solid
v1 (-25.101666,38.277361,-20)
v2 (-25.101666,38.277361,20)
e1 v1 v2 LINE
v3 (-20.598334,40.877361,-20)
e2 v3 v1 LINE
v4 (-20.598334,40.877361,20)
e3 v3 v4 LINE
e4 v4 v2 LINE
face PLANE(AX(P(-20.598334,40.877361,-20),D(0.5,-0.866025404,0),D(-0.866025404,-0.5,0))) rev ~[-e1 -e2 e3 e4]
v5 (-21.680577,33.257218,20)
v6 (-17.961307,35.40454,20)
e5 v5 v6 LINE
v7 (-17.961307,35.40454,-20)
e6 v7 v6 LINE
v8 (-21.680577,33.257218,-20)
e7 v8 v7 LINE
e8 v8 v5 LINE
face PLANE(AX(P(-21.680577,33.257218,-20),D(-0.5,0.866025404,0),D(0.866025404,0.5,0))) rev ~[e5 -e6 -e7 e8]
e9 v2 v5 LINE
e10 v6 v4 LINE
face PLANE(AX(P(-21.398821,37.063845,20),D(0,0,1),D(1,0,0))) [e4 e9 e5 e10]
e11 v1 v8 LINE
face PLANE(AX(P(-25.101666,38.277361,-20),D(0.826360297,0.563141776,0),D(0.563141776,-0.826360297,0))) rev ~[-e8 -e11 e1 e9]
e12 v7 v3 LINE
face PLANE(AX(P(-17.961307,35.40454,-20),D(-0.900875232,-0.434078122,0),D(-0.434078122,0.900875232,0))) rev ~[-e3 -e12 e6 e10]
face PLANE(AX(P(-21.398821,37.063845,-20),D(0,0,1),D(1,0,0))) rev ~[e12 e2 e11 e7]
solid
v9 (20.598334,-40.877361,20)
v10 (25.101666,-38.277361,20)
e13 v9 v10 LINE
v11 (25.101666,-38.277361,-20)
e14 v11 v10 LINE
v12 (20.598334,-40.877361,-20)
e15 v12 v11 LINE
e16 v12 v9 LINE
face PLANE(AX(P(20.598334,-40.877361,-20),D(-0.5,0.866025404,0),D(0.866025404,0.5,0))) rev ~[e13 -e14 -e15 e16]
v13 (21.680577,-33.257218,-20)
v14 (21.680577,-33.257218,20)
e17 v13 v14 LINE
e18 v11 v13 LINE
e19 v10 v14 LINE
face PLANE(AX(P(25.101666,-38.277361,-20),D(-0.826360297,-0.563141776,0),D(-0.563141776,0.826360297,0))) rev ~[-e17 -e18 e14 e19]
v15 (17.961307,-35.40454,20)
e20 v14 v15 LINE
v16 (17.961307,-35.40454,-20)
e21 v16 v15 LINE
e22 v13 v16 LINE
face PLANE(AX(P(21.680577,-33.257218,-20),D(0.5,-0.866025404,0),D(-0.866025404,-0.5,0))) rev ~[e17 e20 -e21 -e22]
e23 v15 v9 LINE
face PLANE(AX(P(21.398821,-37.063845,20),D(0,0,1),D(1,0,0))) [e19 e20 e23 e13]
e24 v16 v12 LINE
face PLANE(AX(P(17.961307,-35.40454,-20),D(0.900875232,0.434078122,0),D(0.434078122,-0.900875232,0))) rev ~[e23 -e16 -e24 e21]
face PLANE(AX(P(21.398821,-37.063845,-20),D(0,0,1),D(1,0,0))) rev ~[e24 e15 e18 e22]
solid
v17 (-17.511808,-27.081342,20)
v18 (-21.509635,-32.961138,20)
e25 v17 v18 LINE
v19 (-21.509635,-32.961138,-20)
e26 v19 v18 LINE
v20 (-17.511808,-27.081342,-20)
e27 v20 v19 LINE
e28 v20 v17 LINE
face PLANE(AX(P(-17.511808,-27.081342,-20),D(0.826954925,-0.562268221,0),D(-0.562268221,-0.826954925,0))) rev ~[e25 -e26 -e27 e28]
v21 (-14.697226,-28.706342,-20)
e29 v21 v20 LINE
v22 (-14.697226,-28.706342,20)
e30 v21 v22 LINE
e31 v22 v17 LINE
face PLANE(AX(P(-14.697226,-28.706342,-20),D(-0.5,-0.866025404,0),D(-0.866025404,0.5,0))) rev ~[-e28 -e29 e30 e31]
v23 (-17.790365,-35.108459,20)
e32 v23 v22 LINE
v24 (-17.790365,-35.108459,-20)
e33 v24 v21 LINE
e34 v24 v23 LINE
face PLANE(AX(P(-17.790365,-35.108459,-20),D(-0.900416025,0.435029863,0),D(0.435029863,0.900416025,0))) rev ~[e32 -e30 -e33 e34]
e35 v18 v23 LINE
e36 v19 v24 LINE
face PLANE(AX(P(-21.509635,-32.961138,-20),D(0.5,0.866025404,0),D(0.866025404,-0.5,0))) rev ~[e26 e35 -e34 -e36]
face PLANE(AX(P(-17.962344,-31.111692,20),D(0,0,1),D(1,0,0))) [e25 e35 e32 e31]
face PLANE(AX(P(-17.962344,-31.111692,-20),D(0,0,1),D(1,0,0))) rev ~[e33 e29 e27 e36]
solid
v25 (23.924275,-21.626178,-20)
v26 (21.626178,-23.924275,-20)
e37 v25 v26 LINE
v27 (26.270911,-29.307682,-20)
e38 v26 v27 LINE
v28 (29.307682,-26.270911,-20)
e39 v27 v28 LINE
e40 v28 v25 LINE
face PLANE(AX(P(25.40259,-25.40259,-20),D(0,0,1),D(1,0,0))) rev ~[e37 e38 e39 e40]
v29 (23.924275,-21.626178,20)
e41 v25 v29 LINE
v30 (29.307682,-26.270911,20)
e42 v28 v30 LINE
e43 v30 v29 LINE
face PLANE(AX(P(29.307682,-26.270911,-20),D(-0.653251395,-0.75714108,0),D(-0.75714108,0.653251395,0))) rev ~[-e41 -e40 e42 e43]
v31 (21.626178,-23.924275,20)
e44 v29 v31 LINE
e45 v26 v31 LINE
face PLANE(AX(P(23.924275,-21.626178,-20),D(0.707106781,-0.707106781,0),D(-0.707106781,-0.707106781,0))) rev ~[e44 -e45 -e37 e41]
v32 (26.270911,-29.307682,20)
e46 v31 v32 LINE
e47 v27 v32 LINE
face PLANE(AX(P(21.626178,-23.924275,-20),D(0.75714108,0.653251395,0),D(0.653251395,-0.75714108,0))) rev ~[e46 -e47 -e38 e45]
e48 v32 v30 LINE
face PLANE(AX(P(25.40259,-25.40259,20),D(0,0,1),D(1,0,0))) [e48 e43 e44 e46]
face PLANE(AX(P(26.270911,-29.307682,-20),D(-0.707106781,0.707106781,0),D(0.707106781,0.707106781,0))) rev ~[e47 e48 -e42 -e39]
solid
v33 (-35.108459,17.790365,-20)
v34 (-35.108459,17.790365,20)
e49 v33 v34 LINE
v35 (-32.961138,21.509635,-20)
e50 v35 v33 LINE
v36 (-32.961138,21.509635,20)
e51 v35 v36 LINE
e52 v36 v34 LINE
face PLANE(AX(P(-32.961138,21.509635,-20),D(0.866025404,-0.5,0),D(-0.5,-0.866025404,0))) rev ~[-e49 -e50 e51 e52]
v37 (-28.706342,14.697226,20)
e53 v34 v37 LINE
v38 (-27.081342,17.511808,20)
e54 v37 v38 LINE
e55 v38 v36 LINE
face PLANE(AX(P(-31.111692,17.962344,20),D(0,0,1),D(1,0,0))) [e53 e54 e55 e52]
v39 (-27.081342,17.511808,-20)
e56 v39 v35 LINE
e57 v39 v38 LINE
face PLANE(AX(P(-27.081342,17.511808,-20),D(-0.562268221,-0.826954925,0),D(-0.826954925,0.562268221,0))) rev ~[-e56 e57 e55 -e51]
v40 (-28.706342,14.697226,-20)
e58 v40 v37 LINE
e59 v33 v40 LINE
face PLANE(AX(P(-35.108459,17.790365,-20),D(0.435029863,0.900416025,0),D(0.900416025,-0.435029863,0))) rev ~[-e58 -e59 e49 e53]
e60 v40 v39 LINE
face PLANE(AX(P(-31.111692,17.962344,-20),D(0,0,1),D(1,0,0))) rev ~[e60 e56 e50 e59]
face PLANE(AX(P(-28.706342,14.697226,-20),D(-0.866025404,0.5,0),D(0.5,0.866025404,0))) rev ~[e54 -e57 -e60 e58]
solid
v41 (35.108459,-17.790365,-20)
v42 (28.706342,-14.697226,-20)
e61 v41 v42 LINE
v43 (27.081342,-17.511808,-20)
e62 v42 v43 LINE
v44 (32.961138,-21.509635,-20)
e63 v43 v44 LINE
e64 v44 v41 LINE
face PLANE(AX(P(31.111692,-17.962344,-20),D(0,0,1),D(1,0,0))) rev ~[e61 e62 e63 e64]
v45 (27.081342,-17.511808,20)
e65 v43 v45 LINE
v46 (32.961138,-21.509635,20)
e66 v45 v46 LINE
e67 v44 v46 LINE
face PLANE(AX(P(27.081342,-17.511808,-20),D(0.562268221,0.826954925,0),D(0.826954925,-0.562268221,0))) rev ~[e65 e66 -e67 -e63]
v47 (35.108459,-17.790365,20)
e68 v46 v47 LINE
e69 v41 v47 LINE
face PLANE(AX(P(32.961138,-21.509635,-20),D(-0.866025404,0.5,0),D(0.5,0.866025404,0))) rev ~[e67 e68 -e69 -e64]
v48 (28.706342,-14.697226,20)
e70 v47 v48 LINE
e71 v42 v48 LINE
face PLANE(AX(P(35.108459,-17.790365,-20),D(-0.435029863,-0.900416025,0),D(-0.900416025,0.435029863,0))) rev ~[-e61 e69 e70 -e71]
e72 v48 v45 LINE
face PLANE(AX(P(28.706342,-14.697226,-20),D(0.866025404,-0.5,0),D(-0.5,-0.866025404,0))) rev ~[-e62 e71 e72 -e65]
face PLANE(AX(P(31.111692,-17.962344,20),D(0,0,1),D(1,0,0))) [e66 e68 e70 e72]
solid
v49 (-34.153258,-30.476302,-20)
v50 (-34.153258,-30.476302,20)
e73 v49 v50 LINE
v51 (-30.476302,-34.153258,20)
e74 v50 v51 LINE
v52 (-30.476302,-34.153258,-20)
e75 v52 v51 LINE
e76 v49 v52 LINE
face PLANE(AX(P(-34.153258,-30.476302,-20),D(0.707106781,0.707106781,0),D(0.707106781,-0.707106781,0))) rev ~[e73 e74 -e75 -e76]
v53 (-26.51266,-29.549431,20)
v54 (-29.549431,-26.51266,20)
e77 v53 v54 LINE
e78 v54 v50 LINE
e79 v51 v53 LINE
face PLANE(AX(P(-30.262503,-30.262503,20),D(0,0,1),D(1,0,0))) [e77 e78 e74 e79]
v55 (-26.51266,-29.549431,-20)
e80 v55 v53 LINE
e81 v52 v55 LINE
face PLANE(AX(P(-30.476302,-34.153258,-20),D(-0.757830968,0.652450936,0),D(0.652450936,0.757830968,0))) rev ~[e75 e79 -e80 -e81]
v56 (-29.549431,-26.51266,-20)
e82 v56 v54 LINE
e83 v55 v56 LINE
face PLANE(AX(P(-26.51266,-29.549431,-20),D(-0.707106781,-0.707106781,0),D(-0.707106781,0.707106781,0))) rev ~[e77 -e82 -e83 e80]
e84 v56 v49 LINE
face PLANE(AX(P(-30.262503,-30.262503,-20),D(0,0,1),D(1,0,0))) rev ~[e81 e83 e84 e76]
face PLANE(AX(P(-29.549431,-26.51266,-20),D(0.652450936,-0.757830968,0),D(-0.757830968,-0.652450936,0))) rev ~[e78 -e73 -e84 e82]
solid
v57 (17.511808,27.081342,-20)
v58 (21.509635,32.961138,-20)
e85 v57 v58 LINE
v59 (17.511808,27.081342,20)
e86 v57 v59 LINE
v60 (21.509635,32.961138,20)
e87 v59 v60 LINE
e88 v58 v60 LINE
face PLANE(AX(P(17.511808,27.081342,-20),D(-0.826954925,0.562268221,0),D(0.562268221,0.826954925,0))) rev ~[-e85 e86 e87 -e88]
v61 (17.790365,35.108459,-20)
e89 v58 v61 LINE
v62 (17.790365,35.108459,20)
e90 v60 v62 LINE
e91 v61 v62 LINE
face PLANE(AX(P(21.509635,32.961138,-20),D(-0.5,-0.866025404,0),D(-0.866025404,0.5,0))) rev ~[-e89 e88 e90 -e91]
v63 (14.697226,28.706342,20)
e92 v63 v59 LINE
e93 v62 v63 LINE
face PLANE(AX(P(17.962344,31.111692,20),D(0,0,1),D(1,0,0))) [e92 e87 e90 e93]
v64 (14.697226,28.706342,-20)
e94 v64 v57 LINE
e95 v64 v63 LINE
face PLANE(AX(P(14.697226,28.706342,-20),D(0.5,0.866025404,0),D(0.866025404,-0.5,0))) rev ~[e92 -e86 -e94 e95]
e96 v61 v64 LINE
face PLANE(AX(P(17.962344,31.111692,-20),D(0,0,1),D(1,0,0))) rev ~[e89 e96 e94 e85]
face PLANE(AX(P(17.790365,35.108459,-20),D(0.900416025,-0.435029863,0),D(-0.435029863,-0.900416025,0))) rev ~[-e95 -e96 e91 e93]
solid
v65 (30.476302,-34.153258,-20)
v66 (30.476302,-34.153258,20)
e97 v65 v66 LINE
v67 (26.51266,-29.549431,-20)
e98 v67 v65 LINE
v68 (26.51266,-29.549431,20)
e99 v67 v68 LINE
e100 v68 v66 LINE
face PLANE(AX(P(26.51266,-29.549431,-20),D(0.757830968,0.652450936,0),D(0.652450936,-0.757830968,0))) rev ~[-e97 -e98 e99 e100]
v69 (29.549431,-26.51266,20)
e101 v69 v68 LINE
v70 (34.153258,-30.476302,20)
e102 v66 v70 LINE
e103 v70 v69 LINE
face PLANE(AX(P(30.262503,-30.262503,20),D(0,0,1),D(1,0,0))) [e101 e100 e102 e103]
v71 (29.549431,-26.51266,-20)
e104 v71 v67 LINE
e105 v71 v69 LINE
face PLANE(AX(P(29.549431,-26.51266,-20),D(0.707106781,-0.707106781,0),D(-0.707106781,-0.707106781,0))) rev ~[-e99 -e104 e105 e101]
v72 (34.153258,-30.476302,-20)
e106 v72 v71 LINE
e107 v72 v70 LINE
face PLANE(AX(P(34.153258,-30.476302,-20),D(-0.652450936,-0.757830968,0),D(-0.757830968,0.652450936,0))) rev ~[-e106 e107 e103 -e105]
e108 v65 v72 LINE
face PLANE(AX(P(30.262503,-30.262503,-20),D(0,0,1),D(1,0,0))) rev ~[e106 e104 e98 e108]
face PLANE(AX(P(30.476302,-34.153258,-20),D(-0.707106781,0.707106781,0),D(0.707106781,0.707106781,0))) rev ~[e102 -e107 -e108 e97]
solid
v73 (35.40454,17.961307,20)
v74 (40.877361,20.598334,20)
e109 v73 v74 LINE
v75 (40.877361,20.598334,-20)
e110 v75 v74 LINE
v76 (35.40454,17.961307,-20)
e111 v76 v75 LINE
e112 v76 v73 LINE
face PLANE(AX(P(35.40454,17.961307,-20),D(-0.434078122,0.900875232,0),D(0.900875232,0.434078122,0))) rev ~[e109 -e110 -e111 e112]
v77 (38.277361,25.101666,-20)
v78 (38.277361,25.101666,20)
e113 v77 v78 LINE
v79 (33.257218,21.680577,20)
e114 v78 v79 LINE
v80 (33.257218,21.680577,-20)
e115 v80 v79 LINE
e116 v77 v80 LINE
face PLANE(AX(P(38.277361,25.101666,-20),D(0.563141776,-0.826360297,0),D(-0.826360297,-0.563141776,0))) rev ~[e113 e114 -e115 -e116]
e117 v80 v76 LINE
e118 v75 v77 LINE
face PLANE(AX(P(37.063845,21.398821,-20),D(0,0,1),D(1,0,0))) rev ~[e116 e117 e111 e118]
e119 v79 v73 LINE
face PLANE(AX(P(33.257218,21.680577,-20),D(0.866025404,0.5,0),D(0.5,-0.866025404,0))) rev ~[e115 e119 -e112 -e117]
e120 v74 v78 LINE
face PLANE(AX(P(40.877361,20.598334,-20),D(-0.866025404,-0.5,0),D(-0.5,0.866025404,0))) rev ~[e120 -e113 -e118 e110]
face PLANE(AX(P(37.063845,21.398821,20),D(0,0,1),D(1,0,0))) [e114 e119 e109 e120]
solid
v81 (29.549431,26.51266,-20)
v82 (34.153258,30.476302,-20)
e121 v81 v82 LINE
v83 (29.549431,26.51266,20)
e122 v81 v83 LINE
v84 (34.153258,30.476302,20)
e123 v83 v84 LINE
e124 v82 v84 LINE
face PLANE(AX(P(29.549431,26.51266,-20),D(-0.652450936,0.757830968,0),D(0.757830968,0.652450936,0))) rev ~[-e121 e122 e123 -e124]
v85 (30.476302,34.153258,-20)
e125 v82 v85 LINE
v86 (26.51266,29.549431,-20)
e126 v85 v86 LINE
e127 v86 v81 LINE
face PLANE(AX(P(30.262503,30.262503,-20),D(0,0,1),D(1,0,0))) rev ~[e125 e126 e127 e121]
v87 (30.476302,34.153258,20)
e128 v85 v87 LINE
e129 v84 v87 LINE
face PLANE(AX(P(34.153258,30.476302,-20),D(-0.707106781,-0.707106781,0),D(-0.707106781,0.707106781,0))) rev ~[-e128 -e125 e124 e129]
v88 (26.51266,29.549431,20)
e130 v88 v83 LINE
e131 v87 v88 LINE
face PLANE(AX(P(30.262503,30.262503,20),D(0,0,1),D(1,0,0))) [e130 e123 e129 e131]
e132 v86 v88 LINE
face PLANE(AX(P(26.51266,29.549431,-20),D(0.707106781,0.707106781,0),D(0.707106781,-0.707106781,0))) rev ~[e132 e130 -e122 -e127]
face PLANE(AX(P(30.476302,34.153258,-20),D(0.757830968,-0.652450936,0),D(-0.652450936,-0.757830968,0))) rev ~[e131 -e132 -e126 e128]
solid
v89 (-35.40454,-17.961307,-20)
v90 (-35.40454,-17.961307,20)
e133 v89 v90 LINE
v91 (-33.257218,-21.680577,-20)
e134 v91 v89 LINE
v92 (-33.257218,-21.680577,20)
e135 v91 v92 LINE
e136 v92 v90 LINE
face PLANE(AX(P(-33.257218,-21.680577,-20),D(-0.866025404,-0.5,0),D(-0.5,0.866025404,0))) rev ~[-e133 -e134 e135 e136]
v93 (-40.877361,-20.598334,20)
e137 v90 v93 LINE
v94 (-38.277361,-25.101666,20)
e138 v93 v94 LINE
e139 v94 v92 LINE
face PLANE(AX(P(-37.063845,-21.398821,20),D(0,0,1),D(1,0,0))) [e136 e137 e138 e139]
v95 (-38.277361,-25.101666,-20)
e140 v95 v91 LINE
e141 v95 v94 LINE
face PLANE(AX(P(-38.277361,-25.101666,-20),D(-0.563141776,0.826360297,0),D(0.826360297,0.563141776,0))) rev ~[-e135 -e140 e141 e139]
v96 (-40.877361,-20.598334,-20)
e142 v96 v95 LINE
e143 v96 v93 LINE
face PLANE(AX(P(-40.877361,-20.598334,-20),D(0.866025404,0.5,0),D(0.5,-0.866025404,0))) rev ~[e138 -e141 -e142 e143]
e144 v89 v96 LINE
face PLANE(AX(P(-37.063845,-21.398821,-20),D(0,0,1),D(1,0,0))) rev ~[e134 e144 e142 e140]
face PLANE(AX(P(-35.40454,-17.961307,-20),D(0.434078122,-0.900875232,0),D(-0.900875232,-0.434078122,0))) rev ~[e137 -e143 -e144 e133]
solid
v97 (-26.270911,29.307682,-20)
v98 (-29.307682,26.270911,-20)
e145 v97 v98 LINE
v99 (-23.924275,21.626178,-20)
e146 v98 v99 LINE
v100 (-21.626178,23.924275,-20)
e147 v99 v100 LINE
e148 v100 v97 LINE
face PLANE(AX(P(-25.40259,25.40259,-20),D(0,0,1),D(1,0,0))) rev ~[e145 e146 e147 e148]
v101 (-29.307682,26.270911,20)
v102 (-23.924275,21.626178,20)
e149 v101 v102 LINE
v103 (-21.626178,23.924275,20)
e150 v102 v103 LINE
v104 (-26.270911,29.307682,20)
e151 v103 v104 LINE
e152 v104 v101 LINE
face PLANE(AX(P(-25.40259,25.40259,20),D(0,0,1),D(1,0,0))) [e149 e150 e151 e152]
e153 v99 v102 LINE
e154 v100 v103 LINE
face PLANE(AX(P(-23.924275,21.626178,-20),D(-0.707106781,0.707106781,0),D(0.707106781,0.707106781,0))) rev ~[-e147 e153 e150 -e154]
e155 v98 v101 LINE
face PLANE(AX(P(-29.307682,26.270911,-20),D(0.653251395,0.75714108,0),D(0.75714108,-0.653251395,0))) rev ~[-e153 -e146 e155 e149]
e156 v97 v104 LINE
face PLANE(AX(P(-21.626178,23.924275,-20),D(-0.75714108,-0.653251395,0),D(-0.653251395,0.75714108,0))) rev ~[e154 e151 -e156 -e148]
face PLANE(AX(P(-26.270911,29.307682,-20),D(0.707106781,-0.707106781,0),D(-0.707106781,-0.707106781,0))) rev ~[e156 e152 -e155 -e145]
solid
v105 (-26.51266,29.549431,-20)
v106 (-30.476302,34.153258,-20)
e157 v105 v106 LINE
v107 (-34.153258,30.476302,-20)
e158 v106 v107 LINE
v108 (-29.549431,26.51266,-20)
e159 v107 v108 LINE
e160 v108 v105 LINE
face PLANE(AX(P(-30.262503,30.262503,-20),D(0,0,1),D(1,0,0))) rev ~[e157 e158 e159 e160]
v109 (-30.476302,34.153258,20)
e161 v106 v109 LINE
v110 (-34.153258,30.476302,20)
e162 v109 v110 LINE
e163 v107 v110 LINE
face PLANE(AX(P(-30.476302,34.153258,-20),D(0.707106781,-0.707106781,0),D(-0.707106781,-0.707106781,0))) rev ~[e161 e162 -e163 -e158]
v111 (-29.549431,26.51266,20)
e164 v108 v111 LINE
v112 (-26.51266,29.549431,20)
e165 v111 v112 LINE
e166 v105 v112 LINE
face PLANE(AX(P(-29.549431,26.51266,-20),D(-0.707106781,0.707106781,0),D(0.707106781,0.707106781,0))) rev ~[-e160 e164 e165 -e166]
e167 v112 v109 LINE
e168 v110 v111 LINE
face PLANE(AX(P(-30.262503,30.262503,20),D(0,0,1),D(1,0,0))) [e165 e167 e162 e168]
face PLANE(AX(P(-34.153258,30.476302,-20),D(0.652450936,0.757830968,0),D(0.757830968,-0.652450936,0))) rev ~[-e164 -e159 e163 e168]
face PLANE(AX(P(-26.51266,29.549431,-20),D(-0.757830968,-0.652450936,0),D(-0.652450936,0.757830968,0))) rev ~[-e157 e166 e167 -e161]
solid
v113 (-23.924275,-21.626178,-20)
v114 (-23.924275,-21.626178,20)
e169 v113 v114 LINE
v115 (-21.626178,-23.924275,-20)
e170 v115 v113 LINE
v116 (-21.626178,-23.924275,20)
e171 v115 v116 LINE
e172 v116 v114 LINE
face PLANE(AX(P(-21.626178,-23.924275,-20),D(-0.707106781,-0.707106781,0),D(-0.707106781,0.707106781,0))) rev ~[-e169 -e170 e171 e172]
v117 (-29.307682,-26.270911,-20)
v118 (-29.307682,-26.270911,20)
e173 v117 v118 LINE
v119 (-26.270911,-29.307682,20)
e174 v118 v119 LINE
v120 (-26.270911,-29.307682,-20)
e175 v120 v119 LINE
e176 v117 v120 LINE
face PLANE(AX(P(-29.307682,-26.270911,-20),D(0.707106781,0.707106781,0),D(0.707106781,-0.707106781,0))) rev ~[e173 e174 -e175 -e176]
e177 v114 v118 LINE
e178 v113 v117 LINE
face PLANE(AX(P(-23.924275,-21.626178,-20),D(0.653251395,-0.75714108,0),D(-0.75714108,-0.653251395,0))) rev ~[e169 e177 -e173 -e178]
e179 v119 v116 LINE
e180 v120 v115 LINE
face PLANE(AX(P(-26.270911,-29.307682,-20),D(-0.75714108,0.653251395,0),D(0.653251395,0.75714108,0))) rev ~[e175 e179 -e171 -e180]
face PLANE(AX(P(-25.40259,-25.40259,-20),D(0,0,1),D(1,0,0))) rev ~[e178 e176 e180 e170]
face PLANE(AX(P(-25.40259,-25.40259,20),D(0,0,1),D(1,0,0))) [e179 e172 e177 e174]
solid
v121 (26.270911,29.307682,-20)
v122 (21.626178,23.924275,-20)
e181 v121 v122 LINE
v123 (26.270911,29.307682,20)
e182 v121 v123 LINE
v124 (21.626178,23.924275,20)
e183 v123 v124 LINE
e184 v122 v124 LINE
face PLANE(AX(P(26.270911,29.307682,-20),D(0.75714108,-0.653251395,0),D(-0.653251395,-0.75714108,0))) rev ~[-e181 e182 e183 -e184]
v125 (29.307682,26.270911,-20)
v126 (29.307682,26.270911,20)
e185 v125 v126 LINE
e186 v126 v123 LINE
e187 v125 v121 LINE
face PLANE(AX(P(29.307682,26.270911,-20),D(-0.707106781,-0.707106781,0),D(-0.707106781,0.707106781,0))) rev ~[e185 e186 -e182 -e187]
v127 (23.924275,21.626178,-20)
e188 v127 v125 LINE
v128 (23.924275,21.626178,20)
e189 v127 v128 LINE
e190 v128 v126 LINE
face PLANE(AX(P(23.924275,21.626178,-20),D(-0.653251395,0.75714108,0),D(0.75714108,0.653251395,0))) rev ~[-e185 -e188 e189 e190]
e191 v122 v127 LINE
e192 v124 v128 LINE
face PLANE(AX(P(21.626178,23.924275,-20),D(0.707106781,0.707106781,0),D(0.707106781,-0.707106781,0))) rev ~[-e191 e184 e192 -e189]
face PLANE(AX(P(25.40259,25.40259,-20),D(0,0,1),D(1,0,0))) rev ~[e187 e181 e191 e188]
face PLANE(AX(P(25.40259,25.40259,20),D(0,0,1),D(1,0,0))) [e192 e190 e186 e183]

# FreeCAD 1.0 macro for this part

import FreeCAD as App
import Part
import Sketcher

V = App.Vector
Q = App.Units.Quantity

doc = App.newDocument("Part")
body = doc.addObject("PartDesign::Body", "Body")

sketch1 = body.newObject("Sketcher::SketchObject", "Sketch")
sketch1.AttachmentSupport = (doc.getObject("XY_Plane"), [""])
sketch1.MapMode = "FlatFace"
sketch1.AttachmentOffset = App.Placement(V(0, 0, -20), App.Rotation())
sketch1.addGeometry(Part.LineSegment(V(35.40454, 17.961307, 0), V(40.877361, 20.598334, 0)), False)
sketch1.addGeometry(Part.LineSegment(V(40.877361, 20.598334, 0), V(38.277361, 25.101666, 0)), False)
sketch1.addGeometry(Part.LineSegment(V(38.277361, 25.101666, 0), V(33.257218, 21.680577, 0)), False)
sketch1.addGeometry(Part.LineSegment(V(33.257218, 21.680577, 0), V(35.40454, 17.961307, 0)), False)
sketch1.addConstraint(Sketcher.Constraint("Coincident", 0, 2, 1, 1))
sketch1.addConstraint(Sketcher.Constraint("Coincident", 1, 2, 2, 1))
sketch1.addConstraint(Sketcher.Constraint("Coincident", 2, 2, 3, 1))
sketch1.addConstraint(Sketcher.Constraint("Coincident", 3, 2, 0, 1))
sketch1.addConstraint(Sketcher.Constraint("Parallel", 1, 3))
sketch1.addConstraint(Sketcher.Constraint("Equal", 0, 2))
sketch1.addConstraint(Sketcher.Constraint("Angle", 1, Q("120 deg")))
sketch1.addConstraint(Sketcher.Constraint("Distance", 1, Q("5.2 mm")))
sketch1.addConstraint(Sketcher.Constraint("DistanceX", -1, 1, 0, 2, Q("40.877361 mm")))
sketch1.addConstraint(Sketcher.Constraint("DistanceX", -1, 1, 2, 2, Q("33.257218 mm")))
sketch1.addConstraint(Sketcher.Constraint("DistanceX", -1, 1, 3, 2, Q("35.40454 mm")))
sketch1.addConstraint(Sketcher.Constraint("DistanceY", -1, 1, 0, 2, Q("20.598334 mm")))
pad1 = body.newObject("PartDesign::Pad", "Pad")
pad1.Profile = sketch1
pad1.Length = 40
body2 = doc.addObject("PartDesign::Body", "Body001")

sketch2 = body2.newObject("Sketcher::SketchObject", "Sketch001")
sketch2.AttachmentSupport = (doc.getObject("XY_Plane001"), [""])
sketch2.MapMode = "FlatFace"
sketch2.AttachmentOffset = App.Placement(V(0, 0, -20), App.Rotation())
sketch2.addGeometry(Part.LineSegment(V(23.924275, 21.626178, 0), V(29.307682, 26.270911, 0)), False)
sketch2.addGeometry(Part.LineSegment(V(29.307682, 26.270911, 0), V(26.270911, 29.307682, 0)), False)
sketch2.addGeometry(Part.LineSegment(V(26.270911, 29.307682, 0), V(21.626178, 23.924275, 0)), False)
sketch2.addGeometry(Part.LineSegment(V(21.626178, 23.924275, 0), V(23.924275, 21.626178, 0)), False)
sketch2.addConstraint(Sketcher.Constraint("Coincident", 0, 2, 1, 1))
sketch2.addConstraint(Sketcher.Constraint("Coincident", 1, 2, 2, 1))
sketch2.addConstraint(Sketcher.Constraint("Coincident", 2, 2, 3, 1))
sketch2.addConstraint(Sketcher.Constraint("Coincident", 3, 2, 0, 1))
sketch2.addConstraint(Sketcher.Constraint("Parallel", 1, 3))
sketch2.addConstraint(Sketcher.Constraint("Equal", 0, 2))
sketch2.addConstraint(Sketcher.Constraint("Angle", 1, Q("135 deg")))
sketch2.addConstraint(Sketcher.Constraint("Distance", 3, Q("3.25 mm")))
sketch2.addConstraint(Sketcher.Constraint("DistanceY", -1, 1, 0, 2, Q("26.270911 mm")))
sketch2.addConstraint(Sketcher.Constraint("DistanceX", -1, 1, 1, 2, Q("26.270911 mm")))
sketch2.addConstraint(Sketcher.Constraint("DistanceX", 1, 2, 0, 2, Q("3.036771 mm")))
sketch2.addConstraint(Sketcher.Constraint("Distance", 0, Q("7.110177 mm")))
pad2 = body2.newObject("PartDesign::Pad", "Pad001")
pad2.Profile = sketch2
pad2.Length = 40
body3 = doc.addObject("PartDesign::Body", "Body002")

sketch3 = body3.newObject("Sketcher::SketchObject", "Sketch002")
sketch3.AttachmentSupport = (doc.getObject("XY_Plane002"), [""])
sketch3.MapMode = "FlatFace"
sketch3.AttachmentOffset = App.Placement(V(0, 0, -20), App.Rotation())
sketch3.addGeometry(Part.LineSegment(V(29.549431, 26.51266, 0), V(34.153258, 30.476302, 0)), False)
sketch3.addGeometry(Part.LineSegment(V(34.153258, 30.476302, 0), V(30.476302, 34.153258, 0)), False)
sketch3.addGeometry(Part.LineSegment(V(30.476302, 34.153258, 0), V(26.51266, 29.549431, 0)), False)
sketch3.addGeometry(Part.LineSegment(V(26.51266, 29.549431, 0), V(29.549431, 26.51266, 0)), False)
sketch3.addConstraint(Sketcher.Constraint("Coincident", 0, 2, 1, 1))
sketch3.addConstraint(Sketcher.Constraint("Coincident", 1, 2, 2, 1))
sketch3.addConstraint(Sketcher.Constraint("Coincident", 2, 2, 3, 1))
sketch3.addConstraint(Sketcher.Constraint("Coincident", 3, 2, 0, 1))
sketch3.addConstraint(Sketcher.Constraint("Parallel", 1, 3))
sketch3.addConstraint(Sketcher.Constraint("Equal", 0, 2))
sketch3.addConstraint(Sketcher.Constraint("Angle", 1, Q("135 deg")))
sketch3.addConstraint(Sketcher.Constraint("Distance", 1, Q("5.2 mm")))
sketch3.addConstraint(Sketcher.Constraint("DistanceX", -1, 1, 2, 2, Q("26.51266 mm")))
sketch3.addConstraint(Sketcher.Constraint("DistanceY", -1, 1, 2, 2, Q("29.549431 mm")))
sketch3.addConstraint(Sketcher.Constraint("DistanceX", -1, 1, 3, 2, Q("29.549431 mm")))
sketch3.addConstraint(Sketcher.Constraint("DistanceY", 2, 2, 0, 2, Q("0.926871 mm")))
pad3 = body3.newObject("PartDesign::Pad", "Pad002")
pad3.Profile = sketch3
pad3.Length = 40
body4 = doc.addObject("PartDesign::Body", "Body003")

sketch4 = body4.newObject("Sketcher::SketchObject", "Sketch003")
sketch4.AttachmentSupport = (doc.getObject("XY_Plane003"), [""])
sketch4.MapMode = "FlatFace"
sketch4.AttachmentOffset = App.Placement(V(0, 0, -20), App.Rotation())
sketch4.addGeometry(Part.LineSegment(V(17.511808, 27.081342, 0), V(21.509635, 32.961138, 0)), False)
sketch4.addGeometry(Part.LineSegment(V(21.509635, 32.961138, 0), V(17.790365, 35.108459, 0)), False)
sketch4.addGeometry(Part.LineSegment(V(17.790365, 35.108459, 0), V(14.697226, 28.706342, 0)), False)
sketch4.addGeometry(Part.LineSegment(V(14.697226, 28.706342, 0), V(17.511808, 27.081342, 0)), False)
sketch4.addConstraint(Sketcher.Constraint("Coincident", 0, 2, 1, 1))
sketch4.addConstraint(Sketcher.Constraint("Coincident", 1, 2, 2, 1))
sketch4.addConstraint(Sketcher.Constraint("Coincident", 2, 2, 3, 1))
sketch4.addConstraint(Sketcher.Constraint("Coincident", 3, 2, 0, 1))
sketch4.addConstraint(Sketcher.Constraint("Parallel", 1, 3))
sketch4.addConstraint(Sketcher.Constraint("Equal", 0, 2))
sketch4.addConstraint(Sketcher.Constraint("Angle", 1, Q("150 deg")))
sketch4.addConstraint(Sketcher.Constraint("Distance", 3, Q("3.25 mm")))
sketch4.addConstraint(Sketcher.Constraint("DistanceY", -1, 1, 1, 2, Q("35.108459 mm")))
sketch4.addConstraint(Sketcher.Constraint("DistanceY", -1, 1, 2, 2, Q("28.706342 mm")))
sketch4.addConstraint(Sketcher.Constraint("DistanceX", -1, 1, 3, 2, Q("17.511808 mm")))
sketch4.addConstraint(Sketcher.Constraint("DistanceX", 1, 2, 0, 2, Q("3.71927 mm")))
pad4 = body4.newObject("PartDesign::Pad", "Pad003")
pad4.Profile = sketch4
pad4.Length = 40
body5 = doc.addObject("PartDesign::Body", "Body004")

sketch5 = body5.newObject("Sketcher::SketchObject", "Sketch004")
sketch5.AttachmentSupport = (doc.getObject("XY_Plane004"), [""])
sketch5.MapMode = "FlatFace"
sketch5.AttachmentOffset = App.Placement(V(0, 0, -20), App.Rotation())
sketch5.addGeometry(Part.LineSegment(V(-17.961307, 35.40454, 0), V(-20.598334, 40.877361, 0)), False)
sketch5.addGeometry(Part.LineSegment(V(-20.598334, 40.877361, 0), V(-25.101666, 38.277361, 0)), False)
sketch5.addGeometry(Part.LineSegment(V(-25.101666, 38.277361, 0), V(-21.680577, 33.257218, 0)), False)
sketch5.addGeometry(Part.LineSegment(V(-21.680577, 33.257218, 0), V(-17.961307, 35.40454, 0)), False)
sketch5.addConstraint(Sketcher.Constraint("Coincident", 0, 2, 1, 1))
sketch5.addConstraint(Sketcher.Constraint("Coincident", 1, 2, 2, 1))
sketch5.addConstraint(Sketcher.Constraint("Coincident", 2, 2, 3, 1))
sketch5.addConstraint(Sketcher.Constraint("Coincident", 3, 2, 0, 1))
sketch5.addConstraint(Sketcher.Constraint("Parallel", 1, 3))
sketch5.addConstraint(Sketcher.Constraint("Equal", 0, 2))
sketch5.addConstraint(Sketcher.Constraint("Angle", 1, Q("-150 deg")))
sketch5.addConstraint(Sketcher.Constraint("Distance", 1, Q("5.2 mm")))
sketch5.addConstraint(Sketcher.Constraint("DistanceY", -1, 1, 0, 2, Q("40.877361 mm")))
sketch5.addConstraint(Sketcher.Constraint("DistanceY", -1, 1, 2, 2, Q("33.257218 mm")))
sketch5.addConstraint(Sketcher.Constraint("DistanceY", -1, 1, 3, 2, Q("35.40454 mm")))
sketch5.addConstraint(Sketcher.Constraint("DistanceX", 0, 2, -1, 1, Q("20.598334 mm")))
pad5 = body5.newObject("PartDesign::Pad", "Pad004")
pad5.Profile = sketch5
pad5.Length = 40
body6 = doc.addObject("PartDesign::Body", "Body005")

sketch6 = body6.newObject("Sketcher::SketchObject", "Sketch005")
sketch6.AttachmentSupport = (doc.getObject("XY_Plane005"), [""])
sketch6.MapMode = "FlatFace"
sketch6.AttachmentOffset = App.Placement(V(0, 0, -20), App.Rotation())
sketch6.addGeometry(Part.LineSegment(V(-21.626178, 23.924275, 0), V(-26.270911, 29.307682, 0)), False)
sketch6.addGeometry(Part.LineSegment(V(-26.270911, 29.307682, 0), V(-29.307682, 26.270911, 0)), False)
sketch6.addGeometry(Part.LineSegment(V(-29.307682, 26.270911, 0), V(-23.924275, 21.626178, 0)), False)
sketch6.addGeometry(Part.LineSegment(V(-23.924275, 21.626178, 0), V(-21.626178, 23.924275, 0)), False)
sketch6.addConstraint(Sketcher.Constraint("Coincident", 0, 2, 1, 1))
sketch6.addConstraint(Sketcher.Constraint("Coincident", 1, 2, 2, 1))
sketch6.addConstraint(Sketcher.Constraint("Coincident", 2, 2, 3, 1))
sketch6.addConstraint(Sketcher.Constraint("Coincident", 3, 2, 0, 1))
sketch6.addConstraint(Sketcher.Constraint("Parallel", 1, 3))
sketch6.addConstraint(Sketcher.Constraint("Equal", 0, 2))
sketch6.addConstraint(Sketcher.Constraint("Angle", 1, Q("-135 deg")))
sketch6.addConstraint(Sketcher.Constraint("Distance", 3, Q("3.25 mm")))
sketch6.addConstraint(Sketcher.Constraint("DistanceX", 0, 2, -1, 1, Q("26.270911 mm")))
sketch6.addConstraint(Sketcher.Constraint("DistanceY", -1, 1, 1, 2, Q("26.270911 mm")))
sketch6.addConstraint(Sketcher.Constraint("DistanceX", 1, 2, 0, 2, Q("3.036771 mm")))
sketch6.addConstraint(Sketcher.Constraint("Distance", 0, Q("7.110177 mm")))
pad6 = body6.newObject("PartDesign::Pad", "Pad005")
pad6.Profile = sketch6
pad6.Length = 40
body7 = doc.addObject("PartDesign::Body", "Body006")

sketch7 = body7.newObject("Sketcher::SketchObject", "Sketch006")
sketch7.AttachmentSupport = (doc.getObject("XY_Plane006"), [""])
sketch7.MapMode = "FlatFace"
sketch7.AttachmentOffset = App.Placement(V(0, 0, -20), App.Rotation())
sketch7.addGeometry(Part.LineSegment(V(-26.51266, 29.549431, 0), V(-30.476302, 34.153258, 0)), False)
sketch7.addGeometry(Part.LineSegment(V(-30.476302, 34.153258, 0), V(-34.153258, 30.476302, 0)), False)
sketch7.addGeometry(Part.LineSegment(V(-34.153258, 30.476302, 0), V(-29.549431, 26.51266, 0)), False)
sketch7.addGeometry(Part.LineSegment(V(-29.549431, 26.51266, 0), V(-26.51266, 29.549431, 0)), False)
sketch7.addConstraint(Sketcher.Constraint("Coincident", 0, 2, 1, 1))
sketch7.addConstraint(Sketcher.Constraint("Coincident", 1, 2, 2, 1))
sketch7.addConstraint(Sketcher.Constraint("Coincident", 2, 2, 3, 1))
sketch7.addConstraint(Sketcher.Constraint("Coincident", 3, 2, 0, 1))
sketch7.addConstraint(Sketcher.Constraint("Parallel", 1, 3))
sketch7.addConstraint(Sketcher.Constraint("Equal", 0, 2))
sketch7.addConstraint(Sketcher.Constraint("Angle", 1, Q("-135 deg")))
sketch7.addConstraint(Sketcher.Constraint("Distance", 1, Q("5.2 mm")))
sketch7.addConstraint(Sketcher.Constraint("DistanceX", 2, 2, -1, 1, Q("29.549431 mm")))
sketch7.addConstraint(Sketcher.Constraint("DistanceY", -1, 1, 2, 2, Q("26.51266 mm")))
sketch7.addConstraint(Sketcher.Constraint("DistanceX", 3, 2, -1, 1, Q("26.51266 mm")))
sketch7.addConstraint(Sketcher.Constraint("DistanceX", 0, 2, 2, 2, Q("0.926871 mm")))
pad7 = body7.newObject("PartDesign::Pad", "Pad006")
pad7.Profile = sketch7
pad7.Length = 40
body8 = doc.addObject("PartDesign::Body", "Body007")

sketch8 = body8.newObject("Sketcher::SketchObject", "Sketch007")
sketch8.AttachmentSupport = (doc.getObject("XY_Plane007"), [""])
sketch8.MapMode = "FlatFace"
sketch8.AttachmentOffset = App.Placement(V(0, 0, -20), App.Rotation())
sketch8.addGeometry(Part.LineSegment(V(-27.081342, 17.511808, 0), V(-32.961138, 21.509635, 0)), False)
sketch8.addGeometry(Part.LineSegment(V(-32.961138, 21.509635, 0), V(-35.108459, 17.790365, 0)), False)
sketch8.addGeometry(Part.LineSegment(V(-35.108459, 17.790365, 0), V(-28.706342, 14.697226, 0)), False)
sketch8.addGeometry(Part.LineSegment(V(-28.706342, 14.697226, 0), V(-27.081342, 17.511808, 0)), False)
sketch8.addConstraint(Sketcher.Constraint("Coincident", 0, 2, 1, 1))
sketch8.addConstraint(Sketcher.Constraint("Coincident", 1, 2, 2, 1))
sketch8.addConstraint(Sketcher.Constraint("Coincident", 2, 2, 3, 1))
sketch8.addConstraint(Sketcher.Constraint("Coincident", 3, 2, 0, 1))
sketch8.addConstraint(Sketcher.Constraint("Parallel", 1, 3))
sketch8.addConstraint(Sketcher.Constraint("Equal", 0, 2))
sketch8.addConstraint(Sketcher.Constraint("Angle", 1, Q("-120 deg")))
sketch8.addConstraint(Sketcher.Constraint("Distance", 3, Q("3.25 mm")))
sketch8.addConstraint(Sketcher.Constraint("DistanceX", 1, 2, -1, 1, Q("35.108459 mm")))
sketch8.addConstraint(Sketcher.Constraint("DistanceX", 2, 2, -1, 1, Q("28.706342 mm")))
sketch8.addConstraint(Sketcher.Constraint("DistanceY", -1, 1, 3, 2, Q("17.511808 mm")))
sketch8.addConstraint(Sketcher.Constraint("DistanceX", 1, 2, 0, 2, Q("2.147321 mm")))
pad8 = body8.newObject("PartDesign::Pad", "Pad007")
pad8.Profile = sketch8
pad8.Length = 40
body9 = doc.addObject("PartDesign::Body", "Body008")

sketch9 = body9.newObject("Sketcher::SketchObject", "Sketch008")
sketch9.AttachmentSupport = (doc.getObject("XY_Plane008"), [""])
sketch9.MapMode = "FlatFace"
sketch9.AttachmentOffset = App.Placement(V(0, 0, -20), App.Rotation())
sketch9.addGeometry(Part.LineSegment(V(-35.40454, -17.961307, 0), V(-40.877361, -20.598334, 0)), False)
sketch9.addGeometry(Part.LineSegment(V(-40.877361, -20.598334, 0), V(-38.277361, -25.101666, 0)), False)
sketch9.addGeometry(Part.LineSegment(V(-38.277361, -25.101666, 0), V(-33.257218, -21.680577, 0)), False)
sketch9.addGeometry(Part.LineSegment(V(-33.257218, -21.680577, 0), V(-35.40454, -17.961307, 0)), False)
sketch9.addConstraint(Sketcher.Constraint("Coincident", 0, 2, 1, 1))
sketch9.addConstraint(Sketcher.Constraint("Coincident", 1, 2, 2, 1))
sketch9.addConstraint(Sketcher.Constraint("Coincident", 2, 2, 3, 1))
sketch9.addConstraint(Sketcher.Constraint("Coincident", 3, 2, 0, 1))
sketch9.addConstraint(Sketcher.Constraint("Parallel", 1, 3))
sketch9.addConstraint(Sketcher.Constraint("Equal", 0, 2))
sketch9.addConstraint(Sketcher.Constraint("Angle", 1, Q("-60 deg")))
sketch9.addConstraint(Sketcher.Constraint("Distance", 1, Q("5.2 mm")))
sketch9.addConstraint(Sketcher.Constraint("DistanceX", 0, 2, -1, 1, Q("40.877361 mm")))
sketch9.addConstraint(Sketcher.Constraint("DistanceX", 2, 2, -1, 1, Q("33.257218 mm")))
sketch9.addConstraint(Sketcher.Constraint("DistanceX", 3, 2, -1, 1, Q("35.40454 mm")))
sketch9.addConstraint(Sketcher.Constraint("DistanceY", 0, 2, -1, 1, Q("20.598334 mm")))
pad9 = body9.newObject("PartDesign::Pad", "Pad008")
pad9.Profile = sketch9
pad9.Length = 40
body10 = doc.addObject("PartDesign::Body", "Body009")

sketch10 = body10.newObject("Sketcher::SketchObject", "Sketch009")
sketch10.AttachmentSupport = (doc.getObject("XY_Plane009"), [""])
sketch10.MapMode = "FlatFace"
sketch10.AttachmentOffset = App.Placement(V(0, 0, -20), App.Rotation())
sketch10.addGeometry(Part.LineSegment(V(-23.924275, -21.626178, 0), V(-29.307682, -26.270911, 0)), False)
sketch10.addGeometry(Part.LineSegment(V(-29.307682, -26.270911, 0), V(-26.270911, -29.307682, 0)), False)
sketch10.addGeometry(Part.LineSegment(V(-26.270911, -29.307682, 0), V(-21.626178, -23.924275, 0)), False)
sketch10.addGeometry(Part.LineSegment(V(-21.626178, -23.924275, 0), V(-23.924275, -21.626178, 0)), False)
sketch10.addConstraint(Sketcher.Constraint("Coincident", 0, 2, 1, 1))
sketch10.addConstraint(Sketcher.Constraint("Coincident", 1, 2, 2, 1))
sketch10.addConstraint(Sketcher.Constraint("Coincident", 2, 2, 3, 1))
sketch10.addConstraint(Sketcher.Constraint("Coincident", 3, 2, 0, 1))
sketch10.addConstraint(Sketcher.Constraint("Parallel", 1, 3))
sketch10.addConstraint(Sketcher.Constraint("Equal", 0, 2))
sketch10.addConstraint(Sketcher.Constraint("Angle", 1, Q("-45 deg")))
sketch10.addConstraint(Sketcher.Constraint("Distance", 3, Q("3.25 mm")))
sketch10.addConstraint(Sketcher.Constraint("DistanceY", 0, 2, -1, 1, Q("26.270911 mm")))
sketch10.addConstraint(Sketcher.Constraint("DistanceX", 1, 2, -1, 1, Q("26.270911 mm")))
sketch10.addConstraint(Sketcher.Constraint("DistanceX", 0, 2, 1, 2, Q("3.036771 mm")))
sketch10.addConstraint(Sketcher.Constraint("Distance", 0, Q("7.110177 mm")))
pad10 = body10.newObject("PartDesign::Pad", "Pad009")
pad10.Profile = sketch10
pad10.Length = 40
body11 = doc.addObject("PartDesign::Body", "Body010")

sketch11 = body11.newObject("Sketcher::SketchObject", "Sketch010")
sketch11.AttachmentSupport = (doc.getObject("XY_Plane010"), [""])
sketch11.MapMode = "FlatFace"
sketch11.AttachmentOffset = App.Placement(V(0, 0, -20), App.Rotation())
sketch11.addGeometry(Part.LineSegment(V(-29.549431, -26.51266, 0), V(-34.153258, -30.476302, 0)), False)
sketch11.addGeometry(Part.LineSegment(V(-34.153258, -30.476302, 0), V(-30.476302, -34.153258, 0)), False)
sketch11.addGeometry(Part.LineSegment(V(-30.476302, -34.153258, 0), V(-26.51266, -29.549431, 0)), False)
sketch11.addGeometry(Part.LineSegment(V(-26.51266, -29.549431, 0), V(-29.549431, -26.51266, 0)), False)
sketch11.addConstraint(Sketcher.Constraint("Coincident", 0, 2, 1, 1))
sketch11.addConstraint(Sketcher.Constraint("Coincident", 1, 2, 2, 1))
sketch11.addConstraint(Sketcher.Constraint("Coincident", 2, 2, 3, 1))
sketch11.addConstraint(Sketcher.Constraint("Coincident", 3, 2, 0, 1))
sketch11.addConstraint(Sketcher.Constraint("Parallel", 1, 3))
sketch11.addConstraint(Sketcher.Constraint("Equal", 0, 2))
sketch11.addConstraint(Sketcher.Constraint("Angle", 1, Q("-45 deg")))
sketch11.addConstraint(Sketcher.Constraint("Distance", 1, Q("5.2 mm")))
sketch11.addConstraint(Sketcher.Constraint("DistanceX", 2, 2, -1, 1, Q("26.51266 mm")))
sketch11.addConstraint(Sketcher.Constraint("DistanceY", 2, 2, -1, 1, Q("29.549431 mm")))
sketch11.addConstraint(Sketcher.Constraint("DistanceX", 3, 2, -1, 1, Q("29.549431 mm")))
sketch11.addConstraint(Sketcher.Constraint("DistanceY", 0, 2, 2, 2, Q("0.926871 mm")))
pad11 = body11.newObject("PartDesign::Pad", "Pad010")
pad11.Profile = sketch11
pad11.Length = 40
body12 = doc.addObject("PartDesign::Body", "Body011")

sketch12 = body12.newObject("Sketcher::SketchObject", "Sketch011")
sketch12.AttachmentSupport = (doc.getObject("XY_Plane011"), [""])
sketch12.MapMode = "FlatFace"
sketch12.AttachmentOffset = App.Placement(V(0, 0, -20), App.Rotation())
sketch12.addGeometry(Part.LineSegment(V(-17.511808, -27.081342, 0), V(-21.509635, -32.961138, 0)), False)
sketch12.addGeometry(Part.LineSegment(V(-21.509635, -32.961138, 0), V(-17.790365, -35.108459, 0)), False)
sketch12.addGeometry(Part.LineSegment(V(-17.790365, -35.108459, 0), V(-14.697226, -28.706342, 0)), False)
sketch12.addGeometry(Part.LineSegment(V(-14.697226, -28.706342, 0), V(-17.511808, -27.081342, 0)), False)
sketch12.addConstraint(Sketcher.Constraint("Coincident", 0, 2, 1, 1))
sketch12.addConstraint(Sketcher.Constraint("Coincident", 1, 2, 2, 1))
sketch12.addConstraint(Sketcher.Constraint("Coincident", 2, 2, 3, 1))
sketch12.addConstraint(Sketcher.Constraint("Coincident", 3, 2, 0, 1))
sketch12.addConstraint(Sketcher.Constraint("Parallel", 1, 3))
sketch12.addConstraint(Sketcher.Constraint("Equal", 0, 2))
sketch12.addConstraint(Sketcher.Constraint("Angle", 1, Q("-30 deg")))
sketch12.addConstraint(Sketcher.Constraint("Distance", 3, Q("3.25 mm")))
sketch12.addConstraint(Sketcher.Constraint("DistanceY", 1, 2, -1, 1, Q("35.108459 mm")))
sketch12.addConstraint(Sketcher.Constraint("DistanceY", 2, 2, -1, 1, Q("28.706342 mm")))
sketch12.addConstraint(Sketcher.Constraint("DistanceX", 3, 2, -1, 1, Q("17.511808 mm")))
sketch12.addConstraint(Sketcher.Constraint("DistanceX", 0, 2, 1, 2, Q("3.71927 mm")))
pad12 = body12.newObject("PartDesign::Pad", "Pad011")
pad12.Profile = sketch12
pad12.Length = 40
body13 = doc.addObject("PartDesign::Body", "Body012")

sketch13 = body13.newObject("Sketcher::SketchObject", "Sketch012")
sketch13.AttachmentSupport = (doc.getObject("XY_Plane012"), [""])
sketch13.MapMode = "FlatFace"
sketch13.AttachmentOffset = App.Placement(V(0, 0, -20), App.Rotation())
sketch13.addGeometry(Part.LineSegment(V(17.961307, -35.40454, 0), V(20.598334, -40.877361, 0)), False)
sketch13.addGeometry(Part.LineSegment(V(20.598334, -40.877361, 0), V(25.101666, -38.277361, 0)), False)
sketch13.addGeometry(Part.LineSegment(V(25.101666, -38.277361, 0), V(21.680577, -33.257218, 0)), False)
sketch13.addGeometry(Part.LineSegment(V(21.680577, -33.257218, 0), V(17.961307, -35.40454, 0)), False)
sketch13.addConstraint(Sketcher.Constraint("Coincident", 0, 2, 1, 1))
sketch13.addConstraint(Sketcher.Constraint("Coincident", 1, 2, 2, 1))
sketch13.addConstraint(Sketcher.Constraint("Coincident", 2, 2, 3, 1))
sketch13.addConstraint(Sketcher.Constraint("Coincident", 3, 2, 0, 1))
sketch13.addConstraint(Sketcher.Constraint("Parallel", 1, 3))
sketch13.addConstraint(Sketcher.Constraint("Equal", 0, 2))
sketch13.addConstraint(Sketcher.Constraint("Angle", 1, Q("30 deg")))
sketch13.addConstraint(Sketcher.Constraint("Distance", 1, Q("5.2 mm")))
sketch13.addConstraint(Sketcher.Constraint("DistanceY", 0, 2, -1, 1, Q("40.877361 mm")))
sketch13.addConstraint(Sketcher.Constraint("DistanceY", 2, 2, -1, 1, Q("33.257218 mm")))
sketch13.addConstraint(Sketcher.Constraint("DistanceY", 3, 2, -1, 1, Q("35.40454 mm")))
sketch13.addConstraint(Sketcher.Constraint("DistanceX", -1, 1, 0, 2, Q("20.598334 mm")))
pad13 = body13.newObject("PartDesign::Pad", "Pad012")
pad13.Profile = sketch13
pad13.Length = 40
body14 = doc.addObject("PartDesign::Body", "Body013")

sketch14 = body14.newObject("Sketcher::SketchObject", "Sketch013")
sketch14.AttachmentSupport = (doc.getObject("XY_Plane013"), [""])
sketch14.MapMode = "FlatFace"
sketch14.AttachmentOffset = App.Placement(V(0, 0, -20), App.Rotation())
sketch14.addGeometry(Part.LineSegment(V(21.626178, -23.924275, 0), V(26.270911, -29.307682, 0)), False)
sketch14.addGeometry(Part.LineSegment(V(26.270911, -29.307682, 0), V(29.307682, -26.270911, 0)), False)
sketch14.addGeometry(Part.LineSegment(V(29.307682, -26.270911, 0), V(23.924275, -21.626178, 0)), False)
sketch14.addGeometry(Part.LineSegment(V(23.924275, -21.626178, 0), V(21.626178, -23.924275, 0)), False)
sketch14.addConstraint(Sketcher.Constraint("Coincident", 0, 2, 1, 1))
sketch14.addConstraint(Sketcher.Constraint("Coincident", 1, 2, 2, 1))
sketch14.addConstraint(Sketcher.Constraint("Coincident", 2, 2, 3, 1))
sketch14.addConstraint(Sketcher.Constraint("Coincident", 3, 2, 0, 1))
sketch14.addConstraint(Sketcher.Constraint("Parallel", 1, 3))
sketch14.addConstraint(Sketcher.Constraint("Equal", 0, 2))
sketch14.addConstraint(Sketcher.Constraint("Angle", 1, Q("45 deg")))
sketch14.addConstraint(Sketcher.Constraint("Distance", 3, Q("3.25 mm")))
sketch14.addConstraint(Sketcher.Constraint("DistanceX", -1, 1, 0, 2, Q("26.270911 mm")))
sketch14.addConstraint(Sketcher.Constraint("DistanceY", 1, 2, -1, 1, Q("26.270911 mm")))
sketch14.addConstraint(Sketcher.Constraint("DistanceX", 0, 2, 1, 2, Q("3.036771 mm")))
sketch14.addConstraint(Sketcher.Constraint("Distance", 0, Q("7.110177 mm")))
pad14 = body14.newObject("PartDesign::Pad", "Pad013")
pad14.Profile = sketch14
pad14.Length = 40
body15 = doc.addObject("PartDesign::Body", "Body014")

sketch15 = body15.newObject("Sketcher::SketchObject", "Sketch014")
sketch15.AttachmentSupport = (doc.getObject("XY_Plane014"), [""])
sketch15.MapMode = "FlatFace"
sketch15.AttachmentOffset = App.Placement(V(0, 0, -20), App.Rotation())
sketch15.addGeometry(Part.LineSegment(V(26.51266, -29.549431, 0), V(30.476302, -34.153258, 0)), False)
sketch15.addGeometry(Part.LineSegment(V(30.476302, -34.153258, 0), V(34.153258, -30.476302, 0)), False)
sketch15.addGeometry(Part.LineSegment(V(34.153258, -30.476302, 0), V(29.549431, -26.51266, 0)), False)
sketch15.addGeometry(Part.LineSegment(V(29.549431, -26.51266, 0), V(26.51266, -29.549431, 0)), False)
sketch15.addConstraint(Sketcher.Constraint("Coincident", 0, 2, 1, 1))
sketch15.addConstraint(Sketcher.Constraint("Coincident", 1, 2, 2, 1))
sketch15.addConstraint(Sketcher.Constraint("Coincident", 2, 2, 3, 1))
sketch15.addConstraint(Sketcher.Constraint("Coincident", 3, 2, 0, 1))
sketch15.addConstraint(Sketcher.Constraint("Parallel", 1, 3))
sketch15.addConstraint(Sketcher.Constraint("Equal", 0, 2))
sketch15.addConstraint(Sketcher.Constraint("Angle", 1, Q("45 deg")))
sketch15.addConstraint(Sketcher.Constraint("Distance", 1, Q("5.2 mm")))
sketch15.addConstraint(Sketcher.Constraint("DistanceX", -1, 1, 2, 2, Q("29.549431 mm")))
sketch15.addConstraint(Sketcher.Constraint("DistanceY", 2, 2, -1, 1, Q("26.51266 mm")))
sketch15.addConstraint(Sketcher.Constraint("DistanceX", -1, 1, 3, 2, Q("26.51266 mm")))
sketch15.addConstraint(Sketcher.Constraint("DistanceX", 2, 2, 0, 2, Q("0.926871 mm")))
pad15 = body15.newObject("PartDesign::Pad", "Pad014")
pad15.Profile = sketch15
pad15.Length = 40
body16 = doc.addObject("PartDesign::Body", "Body015")

sketch16 = body16.newObject("Sketcher::SketchObject", "Sketch015")
sketch16.AttachmentSupport = (doc.getObject("XY_Plane015"), [""])
sketch16.MapMode = "FlatFace"
sketch16.AttachmentOffset = App.Placement(V(0, 0, -20), App.Rotation())
sketch16.addGeometry(Part.LineSegment(V(27.081342, -17.511808, 0), V(32.961138, -21.509635, 0)), False)
sketch16.addGeometry(Part.LineSegment(V(32.961138, -21.509635, 0), V(35.108459, -17.790365, 0)), False)
sketch16.addGeometry(Part.LineSegment(V(35.108459, -17.790365, 0), V(28.706342, -14.697226, 0)), False)
sketch16.addGeometry(Part.LineSegment(V(28.706342, -14.697226, 0), V(27.081342, -17.511808, 0)), False)
sketch16.addConstraint(Sketcher.Constraint("Coincident", 0, 2, 1, 1))
sketch16.addConstraint(Sketcher.Constraint("Coincident", 1, 2, 2, 1))
sketch16.addConstraint(Sketcher.Constraint("Coincident", 2, 2, 3, 1))
sketch16.addConstraint(Sketcher.Constraint("Coincident", 3, 2, 0, 1))
sketch16.addConstraint(Sketcher.Constraint("Parallel", 1, 3))
sketch16.addConstraint(Sketcher.Constraint("Equal", 0, 2))
sketch16.addConstraint(Sketcher.Constraint("Angle", 1, Q("60 deg")))
sketch16.addConstraint(Sketcher.Constraint("Distance", 3, Q("3.25 mm")))
sketch16.addConstraint(Sketcher.Constraint("DistanceX", -1, 1, 1, 2, Q("35.108459 mm")))
sketch16.addConstraint(Sketcher.Constraint("DistanceX", -1, 1, 2, 2, Q("28.706342 mm")))
sketch16.addConstraint(Sketcher.Constraint("DistanceY", 3, 2, -1, 1, Q("17.511808 mm")))
sketch16.addConstraint(Sketcher.Constraint("DistanceX", 0, 2, 1, 2, Q("2.147321 mm")))
pad16 = body16.newObject("PartDesign::Pad", "Pad015")
pad16.Profile = sketch16
pad16.Length = 40

doc.recompute()
